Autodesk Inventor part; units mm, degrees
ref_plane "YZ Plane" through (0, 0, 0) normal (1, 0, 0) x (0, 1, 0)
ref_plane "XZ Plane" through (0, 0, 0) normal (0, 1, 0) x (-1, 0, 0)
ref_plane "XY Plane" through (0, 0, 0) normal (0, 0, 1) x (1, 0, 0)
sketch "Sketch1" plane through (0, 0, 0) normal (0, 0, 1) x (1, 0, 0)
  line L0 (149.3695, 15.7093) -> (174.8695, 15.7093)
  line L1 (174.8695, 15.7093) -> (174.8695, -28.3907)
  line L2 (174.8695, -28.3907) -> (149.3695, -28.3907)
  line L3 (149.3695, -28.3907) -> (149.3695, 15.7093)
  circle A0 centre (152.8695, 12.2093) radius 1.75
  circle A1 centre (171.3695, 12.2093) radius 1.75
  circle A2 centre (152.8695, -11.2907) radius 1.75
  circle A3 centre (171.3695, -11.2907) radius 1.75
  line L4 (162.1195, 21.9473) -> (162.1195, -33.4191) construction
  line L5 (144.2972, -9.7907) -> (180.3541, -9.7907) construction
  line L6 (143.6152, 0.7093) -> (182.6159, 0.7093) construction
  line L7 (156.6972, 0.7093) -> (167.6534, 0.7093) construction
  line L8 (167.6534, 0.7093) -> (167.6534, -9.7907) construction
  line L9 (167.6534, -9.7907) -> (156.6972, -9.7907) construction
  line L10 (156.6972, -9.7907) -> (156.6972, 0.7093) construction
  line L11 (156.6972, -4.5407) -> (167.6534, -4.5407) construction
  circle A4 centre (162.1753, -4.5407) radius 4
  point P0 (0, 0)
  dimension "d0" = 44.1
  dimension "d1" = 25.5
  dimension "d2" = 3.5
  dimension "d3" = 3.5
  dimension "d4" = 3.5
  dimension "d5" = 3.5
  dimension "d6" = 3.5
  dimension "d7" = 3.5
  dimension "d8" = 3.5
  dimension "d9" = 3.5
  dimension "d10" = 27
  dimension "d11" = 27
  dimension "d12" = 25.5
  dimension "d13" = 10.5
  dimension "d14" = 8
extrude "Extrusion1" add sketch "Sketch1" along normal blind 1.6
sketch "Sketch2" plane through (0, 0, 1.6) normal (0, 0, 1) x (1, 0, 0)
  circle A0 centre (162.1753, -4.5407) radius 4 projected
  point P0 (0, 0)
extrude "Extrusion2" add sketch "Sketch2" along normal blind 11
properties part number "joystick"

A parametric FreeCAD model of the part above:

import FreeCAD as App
import Part
import Sketcher

V = App.Vector
Q = App.Units.Quantity

doc = App.newDocument("Part")
body = doc.addObject("PartDesign::Body", "Body")
body.AllowCompound = True

sketch1 = body.newObject("Sketcher::SketchObject", "Sketch")
sketch1.AttachmentSupport = (doc.getObject("XY_Plane"), [""])
sketch1.MapMode = "FlatFace"
sketch1.addGeometry([
    Part.LineSegment(V(174.9, 15.7, 0), V(149.4, 15.7, 0)),
    Part.LineSegment(V(149.4, 15.7, 0), V(149.4, -28.4, 0)),
    Part.LineSegment(V(149.4, -28.4, 0), V(174.9, -28.4, 0)),
    Part.LineSegment(V(174.9, -28.4, 0), V(174.9, 15.7, 0)),
    Part.Circle(V(152.9, -11.3, 0), V(0, 0, 1), 1.8),
    Part.Circle(V(171.4, -11.3, 0), V(0, 0, 1), 1.8),
    Part.Circle(V(152.9, 12.2, 0), V(0, 0, 1), 1.8),
    Part.Circle(V(162.2, -4.5, 0), V(0, 0, 1), 4),
    Part.Circle(V(171.4, 12.2, 0), V(0, 0, 1), 1.8),
], False)
sketch1.addConstraint([
    Sketcher.Constraint("Coincident", 0, 2, 1, 1),
    Sketcher.Constraint("Coincident", 1, 2, 2, 1),
    Sketcher.Constraint("Coincident", 2, 2, 3, 1),
    Sketcher.Constraint("Coincident", 3, 2, 0, 1),
    Sketcher.Constraint("Horizontal", 0),
    Sketcher.Constraint("Vertical", 1),
    Sketcher.Constraint("Horizontal", 2),
    Sketcher.Constraint("Vertical", 3),
    Sketcher.Constraint("Equal", 4, 5),
    Sketcher.Constraint("Equal", 5, 6),
    Sketcher.Constraint("Equal", 6, 8),
    Sketcher.Constraint("Horizontal", 4, 3, 5, 3),
    Sketcher.Constraint("Horizontal", 6, 3, 8, 3),
    Sketcher.Constraint("Vertical", 4, 3, 6, 3),
    Sketcher.Constraint("Vertical", 5, 3, 8, 3),
    Sketcher.Constraint("Diameter", 7, Q("8 mm")),
    Sketcher.Constraint("Diameter", 4, Q("3.5 mm")),
    Sketcher.Constraint("DistanceX", 0, 2, 0, 1, Q("25.5 mm")),
    Sketcher.Constraint("DistanceY", 1, 2, 1, 1, Q("44.1 mm")),
    Sketcher.Constraint("DistanceY", 4, 3, 0, 2, Q("27 mm")),
    Sketcher.Constraint("DistanceX", 0, 2, 6, 3, Q("3.5 mm")),
    Sketcher.Constraint("DistanceY", 6, 3, 0, 2, Q("3.5 mm")),
    Sketcher.Constraint("DistanceX", 5, 3, 2, 2, Q("3.5 mm")),
    Sketcher.Constraint("DistanceY", 5, 3, 7, 3, Q("6.75 mm")),
    Sketcher.Constraint("DistanceX", -1, 1, 4, 3, Q("152.8695 mm")),
    Sketcher.Constraint("DistanceY", 4, 3, -1, 1, Q("11.2907 mm")),
    Sketcher.Constraint("DistanceX", -1, 1, 7, 3, Q("162.1753 mm")),
])
pad1 = body.newObject("PartDesign::Pad", "Pad")
pad1.Profile = sketch1
pad1.Length = 1.6

sketch2 = body.newObject("Sketcher::SketchObject", "Sketch001")
sketch2.AttachmentSupport = (doc.getObject("XY_Plane"), [""])
sketch2.MapMode = "FlatFace"
sketch2.AttachmentOffset = App.Placement(V(0, 0, 1.6), App.Rotation())
sketch2.addGeometry(Part.Circle(V(162.2, -4.5, 0), V(0, 0, 1), 4), False)
sketch2.addConstraint([
    Sketcher.Constraint("Diameter", 0, Q("8 mm")),
    Sketcher.Constraint("DistanceX", -1, 1, 0, 3, Q("162.1753 mm")),
    Sketcher.Constraint("DistanceY", 0, 3, -1, 1, Q("4.5407 mm")),
])
pad2 = body.newObject("PartDesign::Pad", "Pad001")
pad2.Profile = sketch2
pad2.Length = 11

doc.recompute()
